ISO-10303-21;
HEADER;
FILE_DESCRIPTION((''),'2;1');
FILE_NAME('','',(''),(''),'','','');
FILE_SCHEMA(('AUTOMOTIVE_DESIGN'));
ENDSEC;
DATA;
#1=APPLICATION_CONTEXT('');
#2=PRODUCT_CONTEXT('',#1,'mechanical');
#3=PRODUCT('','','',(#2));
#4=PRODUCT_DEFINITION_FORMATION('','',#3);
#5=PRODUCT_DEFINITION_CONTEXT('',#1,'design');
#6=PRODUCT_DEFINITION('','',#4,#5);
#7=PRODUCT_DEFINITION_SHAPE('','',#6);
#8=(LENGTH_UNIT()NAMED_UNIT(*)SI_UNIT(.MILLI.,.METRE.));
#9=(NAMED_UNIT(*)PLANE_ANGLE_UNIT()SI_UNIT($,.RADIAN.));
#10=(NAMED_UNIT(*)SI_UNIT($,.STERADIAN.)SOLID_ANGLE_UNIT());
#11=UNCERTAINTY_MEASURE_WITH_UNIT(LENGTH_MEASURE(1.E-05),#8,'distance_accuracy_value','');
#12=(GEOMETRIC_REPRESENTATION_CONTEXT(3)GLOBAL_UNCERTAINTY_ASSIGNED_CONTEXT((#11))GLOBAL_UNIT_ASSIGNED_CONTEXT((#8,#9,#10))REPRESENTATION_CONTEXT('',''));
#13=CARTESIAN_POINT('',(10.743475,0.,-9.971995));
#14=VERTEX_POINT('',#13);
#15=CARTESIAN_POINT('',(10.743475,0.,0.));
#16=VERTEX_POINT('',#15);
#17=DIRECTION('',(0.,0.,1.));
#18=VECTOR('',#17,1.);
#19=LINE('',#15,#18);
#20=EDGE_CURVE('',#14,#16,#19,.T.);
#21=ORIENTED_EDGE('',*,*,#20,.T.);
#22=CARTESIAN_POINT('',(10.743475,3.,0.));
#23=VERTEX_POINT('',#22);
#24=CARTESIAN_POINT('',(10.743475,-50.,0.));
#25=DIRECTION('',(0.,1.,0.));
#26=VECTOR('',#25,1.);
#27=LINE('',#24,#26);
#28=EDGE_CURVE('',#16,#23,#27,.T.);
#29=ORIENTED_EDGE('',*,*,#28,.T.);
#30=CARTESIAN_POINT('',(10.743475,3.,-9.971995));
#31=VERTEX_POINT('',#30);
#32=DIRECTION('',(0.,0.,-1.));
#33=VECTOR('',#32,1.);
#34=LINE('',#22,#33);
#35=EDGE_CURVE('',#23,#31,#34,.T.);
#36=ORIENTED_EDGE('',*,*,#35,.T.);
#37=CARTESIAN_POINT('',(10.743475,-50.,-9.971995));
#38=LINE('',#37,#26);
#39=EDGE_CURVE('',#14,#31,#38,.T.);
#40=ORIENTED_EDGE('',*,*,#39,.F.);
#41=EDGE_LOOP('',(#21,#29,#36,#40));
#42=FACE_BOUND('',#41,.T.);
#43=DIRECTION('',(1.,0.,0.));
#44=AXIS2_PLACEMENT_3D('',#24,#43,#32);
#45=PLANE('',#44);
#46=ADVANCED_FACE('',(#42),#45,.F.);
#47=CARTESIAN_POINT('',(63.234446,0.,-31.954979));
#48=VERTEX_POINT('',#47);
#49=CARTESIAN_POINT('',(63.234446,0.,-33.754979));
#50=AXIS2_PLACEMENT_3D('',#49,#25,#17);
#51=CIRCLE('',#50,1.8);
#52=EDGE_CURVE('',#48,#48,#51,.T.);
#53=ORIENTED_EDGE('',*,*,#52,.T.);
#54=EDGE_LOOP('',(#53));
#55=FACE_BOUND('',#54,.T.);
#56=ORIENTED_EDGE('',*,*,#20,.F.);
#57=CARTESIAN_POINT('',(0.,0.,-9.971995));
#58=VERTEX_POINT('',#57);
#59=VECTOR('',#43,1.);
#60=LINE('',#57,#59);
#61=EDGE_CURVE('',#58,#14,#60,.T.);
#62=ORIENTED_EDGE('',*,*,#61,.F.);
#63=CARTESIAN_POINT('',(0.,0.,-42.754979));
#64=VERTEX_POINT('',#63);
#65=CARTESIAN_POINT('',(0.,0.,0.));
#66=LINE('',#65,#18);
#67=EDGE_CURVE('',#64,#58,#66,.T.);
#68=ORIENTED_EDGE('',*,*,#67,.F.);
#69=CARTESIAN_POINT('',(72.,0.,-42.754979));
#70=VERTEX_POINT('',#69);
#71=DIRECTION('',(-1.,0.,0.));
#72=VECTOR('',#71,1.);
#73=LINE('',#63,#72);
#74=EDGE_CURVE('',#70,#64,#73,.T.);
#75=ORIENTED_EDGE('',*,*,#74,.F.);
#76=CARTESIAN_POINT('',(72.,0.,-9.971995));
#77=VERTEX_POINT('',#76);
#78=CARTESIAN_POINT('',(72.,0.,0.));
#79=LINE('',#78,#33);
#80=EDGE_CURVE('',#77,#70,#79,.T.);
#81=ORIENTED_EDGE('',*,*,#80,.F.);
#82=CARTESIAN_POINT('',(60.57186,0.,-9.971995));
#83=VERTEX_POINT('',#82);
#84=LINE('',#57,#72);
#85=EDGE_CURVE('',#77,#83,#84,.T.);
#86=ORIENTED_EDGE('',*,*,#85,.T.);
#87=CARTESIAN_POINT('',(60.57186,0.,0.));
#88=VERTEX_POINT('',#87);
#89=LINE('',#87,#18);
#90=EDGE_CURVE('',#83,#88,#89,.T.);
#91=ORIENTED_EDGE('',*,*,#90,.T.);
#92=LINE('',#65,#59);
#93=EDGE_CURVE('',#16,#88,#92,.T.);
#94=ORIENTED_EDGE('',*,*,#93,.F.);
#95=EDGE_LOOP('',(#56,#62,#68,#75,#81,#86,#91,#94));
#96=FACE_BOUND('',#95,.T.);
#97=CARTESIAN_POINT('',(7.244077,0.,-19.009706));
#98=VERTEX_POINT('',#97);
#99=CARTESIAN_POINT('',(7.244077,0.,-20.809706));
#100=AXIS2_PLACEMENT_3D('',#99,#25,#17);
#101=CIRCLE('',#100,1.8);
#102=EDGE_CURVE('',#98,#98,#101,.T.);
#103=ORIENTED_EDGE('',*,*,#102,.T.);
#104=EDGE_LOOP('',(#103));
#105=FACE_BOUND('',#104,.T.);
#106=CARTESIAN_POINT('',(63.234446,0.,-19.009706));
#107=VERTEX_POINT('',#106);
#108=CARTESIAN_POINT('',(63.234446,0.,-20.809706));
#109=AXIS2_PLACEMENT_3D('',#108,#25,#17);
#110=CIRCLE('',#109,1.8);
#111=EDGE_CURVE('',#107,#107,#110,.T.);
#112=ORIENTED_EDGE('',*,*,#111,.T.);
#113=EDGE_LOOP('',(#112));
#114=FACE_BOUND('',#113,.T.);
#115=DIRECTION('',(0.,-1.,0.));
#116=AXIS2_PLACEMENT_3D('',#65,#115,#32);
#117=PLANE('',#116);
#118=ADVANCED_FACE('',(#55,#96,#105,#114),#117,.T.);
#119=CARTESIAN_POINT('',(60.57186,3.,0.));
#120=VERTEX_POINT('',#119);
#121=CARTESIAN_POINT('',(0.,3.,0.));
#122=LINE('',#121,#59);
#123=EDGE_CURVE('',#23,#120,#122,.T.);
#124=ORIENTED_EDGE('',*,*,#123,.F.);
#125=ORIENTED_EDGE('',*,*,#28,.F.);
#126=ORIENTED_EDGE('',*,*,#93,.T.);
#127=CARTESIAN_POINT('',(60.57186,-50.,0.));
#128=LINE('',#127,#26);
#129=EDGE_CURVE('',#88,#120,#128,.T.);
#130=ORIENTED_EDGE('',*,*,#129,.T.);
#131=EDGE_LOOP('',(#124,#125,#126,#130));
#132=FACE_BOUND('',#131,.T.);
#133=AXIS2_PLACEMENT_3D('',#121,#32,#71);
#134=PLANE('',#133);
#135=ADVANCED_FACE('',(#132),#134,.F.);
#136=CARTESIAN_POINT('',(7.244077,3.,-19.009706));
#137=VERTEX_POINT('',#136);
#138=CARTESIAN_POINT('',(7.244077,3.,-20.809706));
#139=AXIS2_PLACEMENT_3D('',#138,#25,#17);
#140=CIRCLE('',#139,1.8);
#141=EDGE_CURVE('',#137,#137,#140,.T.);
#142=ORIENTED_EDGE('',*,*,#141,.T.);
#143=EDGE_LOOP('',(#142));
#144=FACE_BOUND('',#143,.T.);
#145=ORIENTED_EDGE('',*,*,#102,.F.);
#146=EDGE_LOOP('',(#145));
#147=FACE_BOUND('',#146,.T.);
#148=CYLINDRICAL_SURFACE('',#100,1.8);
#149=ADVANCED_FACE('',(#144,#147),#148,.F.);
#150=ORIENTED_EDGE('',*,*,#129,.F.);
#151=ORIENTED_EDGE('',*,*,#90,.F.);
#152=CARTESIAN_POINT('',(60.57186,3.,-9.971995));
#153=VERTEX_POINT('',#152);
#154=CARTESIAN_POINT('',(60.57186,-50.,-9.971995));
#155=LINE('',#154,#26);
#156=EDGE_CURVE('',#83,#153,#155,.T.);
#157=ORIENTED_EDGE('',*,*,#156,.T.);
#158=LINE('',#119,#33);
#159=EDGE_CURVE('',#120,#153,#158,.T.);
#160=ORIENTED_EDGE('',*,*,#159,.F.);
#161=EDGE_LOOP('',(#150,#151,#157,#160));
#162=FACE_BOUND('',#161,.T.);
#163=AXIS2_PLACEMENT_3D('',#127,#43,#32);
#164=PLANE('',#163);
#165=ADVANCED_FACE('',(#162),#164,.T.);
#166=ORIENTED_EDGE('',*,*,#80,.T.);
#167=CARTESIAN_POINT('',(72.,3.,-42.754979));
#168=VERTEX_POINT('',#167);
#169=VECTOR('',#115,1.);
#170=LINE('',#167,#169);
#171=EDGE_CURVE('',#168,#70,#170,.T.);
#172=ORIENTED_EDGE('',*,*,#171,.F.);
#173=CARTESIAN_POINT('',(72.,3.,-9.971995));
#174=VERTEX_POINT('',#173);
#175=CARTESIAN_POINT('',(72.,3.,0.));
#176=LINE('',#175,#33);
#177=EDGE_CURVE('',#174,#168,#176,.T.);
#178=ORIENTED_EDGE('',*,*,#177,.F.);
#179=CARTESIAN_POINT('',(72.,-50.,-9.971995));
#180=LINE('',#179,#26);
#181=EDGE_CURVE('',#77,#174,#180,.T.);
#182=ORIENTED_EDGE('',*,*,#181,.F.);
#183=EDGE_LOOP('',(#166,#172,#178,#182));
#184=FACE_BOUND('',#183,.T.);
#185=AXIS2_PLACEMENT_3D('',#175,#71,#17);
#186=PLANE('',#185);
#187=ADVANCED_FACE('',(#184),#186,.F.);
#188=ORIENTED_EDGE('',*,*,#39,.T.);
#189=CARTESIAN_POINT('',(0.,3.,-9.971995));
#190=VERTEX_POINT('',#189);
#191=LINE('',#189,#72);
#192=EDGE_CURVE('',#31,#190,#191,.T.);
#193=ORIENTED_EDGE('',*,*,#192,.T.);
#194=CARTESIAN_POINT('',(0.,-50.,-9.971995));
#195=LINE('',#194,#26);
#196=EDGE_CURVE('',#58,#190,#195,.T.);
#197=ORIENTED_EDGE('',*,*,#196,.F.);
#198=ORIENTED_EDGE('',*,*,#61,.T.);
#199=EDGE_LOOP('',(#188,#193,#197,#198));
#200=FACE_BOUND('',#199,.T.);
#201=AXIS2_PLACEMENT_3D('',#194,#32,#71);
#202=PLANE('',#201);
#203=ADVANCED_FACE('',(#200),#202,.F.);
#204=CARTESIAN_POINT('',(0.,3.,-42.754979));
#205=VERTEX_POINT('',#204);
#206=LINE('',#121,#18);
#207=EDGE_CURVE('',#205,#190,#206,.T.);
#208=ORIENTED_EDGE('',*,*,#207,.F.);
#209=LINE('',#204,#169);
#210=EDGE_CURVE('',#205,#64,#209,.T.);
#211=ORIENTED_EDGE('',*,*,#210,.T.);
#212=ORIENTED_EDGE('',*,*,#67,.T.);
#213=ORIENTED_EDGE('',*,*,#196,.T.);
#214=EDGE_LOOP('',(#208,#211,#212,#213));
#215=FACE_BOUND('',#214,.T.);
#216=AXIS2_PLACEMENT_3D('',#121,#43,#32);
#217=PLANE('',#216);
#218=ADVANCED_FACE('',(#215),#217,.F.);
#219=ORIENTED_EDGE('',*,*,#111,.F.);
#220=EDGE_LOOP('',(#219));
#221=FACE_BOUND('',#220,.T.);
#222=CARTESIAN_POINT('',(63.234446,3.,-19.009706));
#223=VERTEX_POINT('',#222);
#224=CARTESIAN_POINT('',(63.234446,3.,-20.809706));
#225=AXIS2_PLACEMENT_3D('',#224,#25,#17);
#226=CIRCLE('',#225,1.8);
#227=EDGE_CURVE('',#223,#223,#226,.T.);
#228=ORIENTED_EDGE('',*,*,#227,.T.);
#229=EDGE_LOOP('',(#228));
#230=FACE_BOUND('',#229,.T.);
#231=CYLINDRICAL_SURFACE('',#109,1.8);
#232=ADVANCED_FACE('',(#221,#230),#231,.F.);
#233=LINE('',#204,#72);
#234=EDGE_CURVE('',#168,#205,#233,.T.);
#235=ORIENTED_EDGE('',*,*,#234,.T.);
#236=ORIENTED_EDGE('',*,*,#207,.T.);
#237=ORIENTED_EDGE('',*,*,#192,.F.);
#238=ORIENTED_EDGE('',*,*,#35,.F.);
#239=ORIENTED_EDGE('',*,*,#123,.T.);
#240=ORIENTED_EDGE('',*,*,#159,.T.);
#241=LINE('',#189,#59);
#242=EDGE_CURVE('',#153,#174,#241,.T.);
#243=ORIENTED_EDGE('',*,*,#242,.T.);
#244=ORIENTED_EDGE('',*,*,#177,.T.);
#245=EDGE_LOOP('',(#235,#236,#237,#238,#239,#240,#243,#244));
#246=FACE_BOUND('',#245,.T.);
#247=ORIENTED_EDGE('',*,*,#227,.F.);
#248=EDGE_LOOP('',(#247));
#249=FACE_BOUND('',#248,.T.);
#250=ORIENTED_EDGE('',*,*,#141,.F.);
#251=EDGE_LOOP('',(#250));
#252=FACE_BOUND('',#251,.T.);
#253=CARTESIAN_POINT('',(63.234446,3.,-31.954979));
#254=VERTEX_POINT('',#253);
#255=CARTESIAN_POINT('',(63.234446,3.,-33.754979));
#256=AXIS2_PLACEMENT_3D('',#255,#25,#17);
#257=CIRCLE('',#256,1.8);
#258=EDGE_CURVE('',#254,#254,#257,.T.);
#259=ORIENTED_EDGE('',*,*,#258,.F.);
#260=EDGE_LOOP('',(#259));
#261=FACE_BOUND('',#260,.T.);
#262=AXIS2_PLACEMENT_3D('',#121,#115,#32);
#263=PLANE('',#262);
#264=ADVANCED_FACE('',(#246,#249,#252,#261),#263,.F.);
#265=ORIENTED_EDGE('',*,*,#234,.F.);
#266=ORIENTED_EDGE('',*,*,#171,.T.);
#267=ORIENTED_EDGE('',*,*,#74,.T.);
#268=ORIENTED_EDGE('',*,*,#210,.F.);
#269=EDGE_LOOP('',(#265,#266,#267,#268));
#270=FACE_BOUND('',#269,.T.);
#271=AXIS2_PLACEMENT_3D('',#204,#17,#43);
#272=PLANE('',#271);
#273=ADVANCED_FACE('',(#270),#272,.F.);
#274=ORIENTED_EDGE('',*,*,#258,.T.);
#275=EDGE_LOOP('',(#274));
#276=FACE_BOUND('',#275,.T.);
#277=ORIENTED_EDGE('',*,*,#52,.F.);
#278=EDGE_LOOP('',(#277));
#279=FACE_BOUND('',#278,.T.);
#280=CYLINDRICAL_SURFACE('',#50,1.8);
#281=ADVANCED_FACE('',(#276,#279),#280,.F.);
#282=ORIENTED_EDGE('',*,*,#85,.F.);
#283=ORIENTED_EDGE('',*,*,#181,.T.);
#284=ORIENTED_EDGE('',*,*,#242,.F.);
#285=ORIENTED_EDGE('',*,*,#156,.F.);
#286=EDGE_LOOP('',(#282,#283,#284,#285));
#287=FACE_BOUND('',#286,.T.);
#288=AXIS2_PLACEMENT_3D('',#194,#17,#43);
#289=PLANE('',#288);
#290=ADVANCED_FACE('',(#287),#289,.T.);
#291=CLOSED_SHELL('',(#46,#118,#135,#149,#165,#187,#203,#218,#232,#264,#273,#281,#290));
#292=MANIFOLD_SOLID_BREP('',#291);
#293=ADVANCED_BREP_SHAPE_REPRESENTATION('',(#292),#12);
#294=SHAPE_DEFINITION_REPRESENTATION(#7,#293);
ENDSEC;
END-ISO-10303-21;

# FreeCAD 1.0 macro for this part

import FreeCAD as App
import Part
import Sketcher


def add_polygon(sketch, points):
    """Adds a closed chain of lines whose ends are joined by coincident constraints."""
    first, n = sketch.GeometryCount, len(points)
    for a, b in zip(points, points[1:] + points[:1]):
        sketch.addGeometry(Part.LineSegment(App.Vector(*a, 0), App.Vector(*b, 0)), False)
    for i in range(n):
        sketch.addConstraint(Sketcher.Constraint("Coincident", first + i, 2, first + (i + 1) % n, 1))

doc = App.newDocument("Part")
params = doc.addObject("Spreadsheet::Sheet", "Params")
for row, (alias, value) in enumerate([
    ("sketch1_width", "72 mm"),
    ("pad1_length", "3 mm"),
    ("sketch2_diameter", "3.6 mm"),
    ("pocket1_length", "3 mm"),
    ("pocket2_length", "53 mm"),
], start=1):
    params.set(f"A{row}", alias)
    params.set(f"B{row}", "=" + value)
    params.setAlias(f"B{row}", alias)

body = doc.addObject("PartDesign::Body", "Body")

sketch1 = body.newObject("Sketcher::SketchObject", "Sketch")
sketch1.AttachmentSupport = (doc.getObject("XZ_Plane"), [""])
sketch1.MapMode = "FlatFace"
add_polygon(sketch1, [(0, -43), (0, 0), (72, 0), (72, -43)])
sketch1.addConstraint([
    Sketcher.Constraint("Vertical", 0),
    Sketcher.Constraint("Horizontal", 1),
    Sketcher.Constraint("Vertical", 2),
    Sketcher.Constraint("Horizontal", 3),
    Sketcher.Constraint("Coincident", 0, 2, -1, 1),
    Sketcher.Constraint("DistanceX", 1, 1, 1, 2, 72.0),
    Sketcher.Constraint("DistanceY", 0, 1, 0, 2, 42.754979),
])
sketch1.setExpression("Constraints[9]", "Params.sketch1_width")
pad1 = body.newObject("PartDesign::Pad", "Pad")
pad1.Profile = sketch1
pad1.setExpression("Length", "Params.pad1_length")
pad1.Reversed = True

sketch2 = body.newObject("Sketcher::SketchObject", "Sketch001")
sketch2.AttachmentSupport = (doc.getObject("XZ_Plane"), [""])
sketch2.MapMode = "FlatFace"
sketch2.AttachmentOffset = App.Placement(App.Vector(0, 0, -3), App.Rotation())
sketch2.addGeometry([
    Part.Circle(App.Vector(7.2, -20.8, 0), App.Vector(0, 0, 1), 1.8),
    Part.Circle(App.Vector(63.2, -20.8, 0), App.Vector(0, 0, 1), 1.8),
    Part.Circle(App.Vector(63.2, -33.8, 0), App.Vector(0, 0, 1), 1.8),
], False)
sketch2.addConstraint([
    Sketcher.Constraint("Equal", 0, 1),
    Sketcher.Constraint("Equal", 1, 2),
    Sketcher.Constraint("Horizontal", 0, 3, 1, 3),
    Sketcher.Constraint("Vertical", 1, 3, 2, 3),
    Sketcher.Constraint("Diameter", 0, 3.6),
    Sketcher.Constraint("DistanceY", 2, 3, -1, 1, 33.754979),
    Sketcher.Constraint("DistanceX", 0, 3, 1, 3, 55.990369),
    Sketcher.Constraint("DistanceX", -1, 1, 0, 3, 7.244077),
    Sketcher.Constraint("DistanceY", 0, 3, -1, 1, 20.809706),
])
sketch2.setExpression("Constraints[4]", "Params.sketch2_diameter")
pocket1 = body.newObject("PartDesign::Pocket", "Pocket")
pocket1.Profile = sketch2
pocket1.setExpression("Length", "Params.pocket1_length")
pocket1.Reversed = True

sketch3 = body.newObject("Sketcher::SketchObject", "Sketch002")
sketch3.AttachmentSupport = (doc.getObject("XZ_Plane"), [""])
sketch3.MapMode = "FlatFace"
sketch3.AttachmentOffset = App.Placement(App.Vector(0, 0, -3), App.Rotation())
add_polygon(sketch3, [(0, -10), (0, 0), (11, 0), (11, -10)])
add_polygon(sketch3, [(61, -10), (61, 0), (72, 0), (72, -10)])
sketch3.addConstraint([
    Sketcher.Constraint("Vertical", 0),
    Sketcher.Constraint("Horizontal", 1),
    Sketcher.Constraint("Vertical", 2),
    Sketcher.Constraint("Horizontal", 3),
    Sketcher.Constraint("Vertical", 4),
    Sketcher.Constraint("Horizontal", 5),
    Sketcher.Constraint("Vertical", 6),
    Sketcher.Constraint("Horizontal", 7),
    Sketcher.Constraint("Coincident", 0, 2, -1, 1),
    Sketcher.Constraint("PointOnObject", 4, 2, -1),
    Sketcher.Constraint("Horizontal", 3, 2, 6, 2),
    Sketcher.Constraint("DistanceX", -1, 1, 5, 2, 72.0),
    Sketcher.Constraint("DistanceX", 5, 1, 5, 2, 11.42814),
    Sketcher.Constraint("DistanceX", 1, 1, 1, 2, 10.743475),
    Sketcher.Constraint("DistanceY", 0, 1, 0, 2, 9.971995),
])
pocket2 = body.newObject("PartDesign::Pocket", "Pocket001")
pocket2.Profile = sketch3
pocket2.setExpression("Length", "Params.pocket2_length")
pocket2.Reversed = True

doc.recompute()
